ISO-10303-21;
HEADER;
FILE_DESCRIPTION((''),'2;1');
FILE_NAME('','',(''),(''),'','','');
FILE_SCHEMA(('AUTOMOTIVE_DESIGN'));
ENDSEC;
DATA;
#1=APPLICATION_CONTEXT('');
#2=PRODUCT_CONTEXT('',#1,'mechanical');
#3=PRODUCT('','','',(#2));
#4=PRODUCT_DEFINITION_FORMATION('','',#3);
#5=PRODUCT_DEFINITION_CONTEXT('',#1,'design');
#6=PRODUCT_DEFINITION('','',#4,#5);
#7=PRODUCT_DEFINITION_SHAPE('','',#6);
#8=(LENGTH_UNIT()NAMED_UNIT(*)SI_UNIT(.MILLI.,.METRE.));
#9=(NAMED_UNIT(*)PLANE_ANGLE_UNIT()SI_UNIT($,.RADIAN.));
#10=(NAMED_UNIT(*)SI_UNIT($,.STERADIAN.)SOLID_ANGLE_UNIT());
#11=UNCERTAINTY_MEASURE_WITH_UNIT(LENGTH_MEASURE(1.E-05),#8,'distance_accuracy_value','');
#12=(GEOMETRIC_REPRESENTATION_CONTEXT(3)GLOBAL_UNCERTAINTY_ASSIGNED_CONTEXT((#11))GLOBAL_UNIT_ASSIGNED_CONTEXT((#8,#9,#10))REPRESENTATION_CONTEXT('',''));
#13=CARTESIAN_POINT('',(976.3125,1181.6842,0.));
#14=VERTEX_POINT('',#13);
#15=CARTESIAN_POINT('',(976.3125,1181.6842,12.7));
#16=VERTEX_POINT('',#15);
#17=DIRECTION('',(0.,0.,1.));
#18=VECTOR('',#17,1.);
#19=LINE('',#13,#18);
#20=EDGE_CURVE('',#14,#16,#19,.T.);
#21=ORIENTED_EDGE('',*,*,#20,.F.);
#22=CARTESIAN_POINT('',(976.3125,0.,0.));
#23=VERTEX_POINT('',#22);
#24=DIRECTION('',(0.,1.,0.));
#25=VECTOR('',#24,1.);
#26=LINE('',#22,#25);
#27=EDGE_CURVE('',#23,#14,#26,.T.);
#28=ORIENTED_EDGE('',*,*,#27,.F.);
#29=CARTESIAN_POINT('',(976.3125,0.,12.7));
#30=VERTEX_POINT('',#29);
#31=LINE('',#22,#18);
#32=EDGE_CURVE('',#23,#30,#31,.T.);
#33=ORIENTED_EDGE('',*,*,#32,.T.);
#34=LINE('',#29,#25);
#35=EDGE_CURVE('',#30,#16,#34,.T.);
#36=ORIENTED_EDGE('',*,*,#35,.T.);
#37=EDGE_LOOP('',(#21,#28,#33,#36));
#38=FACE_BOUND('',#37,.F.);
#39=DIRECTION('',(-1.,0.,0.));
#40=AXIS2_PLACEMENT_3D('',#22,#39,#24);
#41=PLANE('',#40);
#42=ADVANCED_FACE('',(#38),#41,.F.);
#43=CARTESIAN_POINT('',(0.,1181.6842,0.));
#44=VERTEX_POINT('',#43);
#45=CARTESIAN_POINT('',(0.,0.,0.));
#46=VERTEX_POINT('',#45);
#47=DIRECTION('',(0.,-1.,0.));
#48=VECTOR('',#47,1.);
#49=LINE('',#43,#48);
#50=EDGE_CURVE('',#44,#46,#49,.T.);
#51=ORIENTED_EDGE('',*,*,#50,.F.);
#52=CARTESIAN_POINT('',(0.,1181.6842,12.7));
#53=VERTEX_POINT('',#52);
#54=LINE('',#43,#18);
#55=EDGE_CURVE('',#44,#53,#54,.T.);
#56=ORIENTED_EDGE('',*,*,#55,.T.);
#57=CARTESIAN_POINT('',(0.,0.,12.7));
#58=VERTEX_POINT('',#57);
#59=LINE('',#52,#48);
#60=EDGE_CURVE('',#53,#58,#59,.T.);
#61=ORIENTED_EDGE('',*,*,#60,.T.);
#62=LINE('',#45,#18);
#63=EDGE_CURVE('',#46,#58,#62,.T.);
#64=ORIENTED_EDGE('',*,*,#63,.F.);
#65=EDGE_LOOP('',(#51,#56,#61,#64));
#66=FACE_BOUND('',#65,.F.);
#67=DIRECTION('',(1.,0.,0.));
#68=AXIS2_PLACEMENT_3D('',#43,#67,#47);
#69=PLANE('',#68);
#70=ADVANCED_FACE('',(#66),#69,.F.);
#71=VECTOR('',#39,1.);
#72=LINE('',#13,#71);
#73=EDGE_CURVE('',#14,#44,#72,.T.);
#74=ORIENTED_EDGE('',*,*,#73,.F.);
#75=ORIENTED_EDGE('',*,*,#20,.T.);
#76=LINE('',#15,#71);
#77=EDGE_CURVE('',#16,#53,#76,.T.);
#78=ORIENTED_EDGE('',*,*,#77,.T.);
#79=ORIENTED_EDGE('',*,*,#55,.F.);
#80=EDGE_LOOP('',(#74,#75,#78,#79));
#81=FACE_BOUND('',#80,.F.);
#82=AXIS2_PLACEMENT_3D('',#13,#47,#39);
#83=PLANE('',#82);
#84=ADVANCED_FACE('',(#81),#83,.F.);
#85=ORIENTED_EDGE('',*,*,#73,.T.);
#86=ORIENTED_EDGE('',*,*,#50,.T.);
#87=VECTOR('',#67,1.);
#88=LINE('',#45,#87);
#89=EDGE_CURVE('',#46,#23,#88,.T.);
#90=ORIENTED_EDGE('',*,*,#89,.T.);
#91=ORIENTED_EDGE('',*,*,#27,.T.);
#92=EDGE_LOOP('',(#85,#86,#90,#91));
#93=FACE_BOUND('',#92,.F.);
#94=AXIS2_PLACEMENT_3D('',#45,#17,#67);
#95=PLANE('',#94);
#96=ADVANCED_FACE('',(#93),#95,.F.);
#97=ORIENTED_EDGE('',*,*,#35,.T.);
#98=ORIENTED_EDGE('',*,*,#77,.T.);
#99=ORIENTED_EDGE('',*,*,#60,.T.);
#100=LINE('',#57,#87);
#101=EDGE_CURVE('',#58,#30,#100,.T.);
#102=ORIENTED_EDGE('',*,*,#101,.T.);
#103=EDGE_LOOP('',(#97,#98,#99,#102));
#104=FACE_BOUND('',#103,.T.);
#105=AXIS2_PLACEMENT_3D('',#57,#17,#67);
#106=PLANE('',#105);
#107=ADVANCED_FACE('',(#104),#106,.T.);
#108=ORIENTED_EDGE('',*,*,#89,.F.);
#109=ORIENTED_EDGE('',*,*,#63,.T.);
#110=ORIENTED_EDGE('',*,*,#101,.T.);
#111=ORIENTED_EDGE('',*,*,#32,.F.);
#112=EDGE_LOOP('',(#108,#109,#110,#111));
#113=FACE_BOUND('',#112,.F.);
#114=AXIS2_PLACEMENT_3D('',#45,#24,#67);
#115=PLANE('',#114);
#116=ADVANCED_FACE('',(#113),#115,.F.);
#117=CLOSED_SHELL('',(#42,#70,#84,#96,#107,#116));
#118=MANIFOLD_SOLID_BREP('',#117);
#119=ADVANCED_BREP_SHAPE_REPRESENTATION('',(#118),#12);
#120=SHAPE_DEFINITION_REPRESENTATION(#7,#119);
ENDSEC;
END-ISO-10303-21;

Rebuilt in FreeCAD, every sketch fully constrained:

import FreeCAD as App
import Part
import Sketcher
from FreeCAD import Vector
Q = App.Units.Quantity


def add_polygon(sketch, points):
    """Adds a closed chain of lines whose ends are joined by coincident constraints."""
    first, n = sketch.GeometryCount, len(points)
    for a, b in zip(points, points[1:] + points[:1]):
        sketch.addGeometry(Part.LineSegment(App.Vector(*a, 0), App.Vector(*b, 0)), False)
    for i in range(n):
        sketch.addConstraint(Sketcher.Constraint("Coincident", first + i, 2, first + (i + 1) % n, 1))

doc = App.newDocument("Part")
body = doc.addObject("PartDesign::Body", "Body")

# Sketch on XY plane
sketch1 = body.newObject("Sketcher::SketchObject", "Sketch")
sketch1.AttachmentSupport = (doc.getObject("XY_Plane"), [""])
sketch1.MapMode = "FlatFace"
add_polygon(sketch1, [(0, 1181.6842), (0, 0), (976.3125, 0), (976.3125, 1181.6842)])  # lines 0-3
sketch1.addConstraint([
    Sketcher.Constraint("Vertical", 0),
    Sketcher.Constraint("Horizontal", 1),
    Sketcher.Constraint("Vertical", 2),
    Sketcher.Constraint("Horizontal", 3),
    Sketcher.Constraint("Coincident", 0, 2, -1, 1),
    Sketcher.Constraint("DistanceX", 1, 1, 1, 2, Q("38.4375 in")),
    Sketcher.Constraint("DistanceY", 0, 2, 0, 1, Q("46.523 in")),
])
pad1 = body.newObject("PartDesign::Pad", "Pad")
pad1.Profile = sketch1
pad1.Length = Q("0.5 in")

doc.recompute()
